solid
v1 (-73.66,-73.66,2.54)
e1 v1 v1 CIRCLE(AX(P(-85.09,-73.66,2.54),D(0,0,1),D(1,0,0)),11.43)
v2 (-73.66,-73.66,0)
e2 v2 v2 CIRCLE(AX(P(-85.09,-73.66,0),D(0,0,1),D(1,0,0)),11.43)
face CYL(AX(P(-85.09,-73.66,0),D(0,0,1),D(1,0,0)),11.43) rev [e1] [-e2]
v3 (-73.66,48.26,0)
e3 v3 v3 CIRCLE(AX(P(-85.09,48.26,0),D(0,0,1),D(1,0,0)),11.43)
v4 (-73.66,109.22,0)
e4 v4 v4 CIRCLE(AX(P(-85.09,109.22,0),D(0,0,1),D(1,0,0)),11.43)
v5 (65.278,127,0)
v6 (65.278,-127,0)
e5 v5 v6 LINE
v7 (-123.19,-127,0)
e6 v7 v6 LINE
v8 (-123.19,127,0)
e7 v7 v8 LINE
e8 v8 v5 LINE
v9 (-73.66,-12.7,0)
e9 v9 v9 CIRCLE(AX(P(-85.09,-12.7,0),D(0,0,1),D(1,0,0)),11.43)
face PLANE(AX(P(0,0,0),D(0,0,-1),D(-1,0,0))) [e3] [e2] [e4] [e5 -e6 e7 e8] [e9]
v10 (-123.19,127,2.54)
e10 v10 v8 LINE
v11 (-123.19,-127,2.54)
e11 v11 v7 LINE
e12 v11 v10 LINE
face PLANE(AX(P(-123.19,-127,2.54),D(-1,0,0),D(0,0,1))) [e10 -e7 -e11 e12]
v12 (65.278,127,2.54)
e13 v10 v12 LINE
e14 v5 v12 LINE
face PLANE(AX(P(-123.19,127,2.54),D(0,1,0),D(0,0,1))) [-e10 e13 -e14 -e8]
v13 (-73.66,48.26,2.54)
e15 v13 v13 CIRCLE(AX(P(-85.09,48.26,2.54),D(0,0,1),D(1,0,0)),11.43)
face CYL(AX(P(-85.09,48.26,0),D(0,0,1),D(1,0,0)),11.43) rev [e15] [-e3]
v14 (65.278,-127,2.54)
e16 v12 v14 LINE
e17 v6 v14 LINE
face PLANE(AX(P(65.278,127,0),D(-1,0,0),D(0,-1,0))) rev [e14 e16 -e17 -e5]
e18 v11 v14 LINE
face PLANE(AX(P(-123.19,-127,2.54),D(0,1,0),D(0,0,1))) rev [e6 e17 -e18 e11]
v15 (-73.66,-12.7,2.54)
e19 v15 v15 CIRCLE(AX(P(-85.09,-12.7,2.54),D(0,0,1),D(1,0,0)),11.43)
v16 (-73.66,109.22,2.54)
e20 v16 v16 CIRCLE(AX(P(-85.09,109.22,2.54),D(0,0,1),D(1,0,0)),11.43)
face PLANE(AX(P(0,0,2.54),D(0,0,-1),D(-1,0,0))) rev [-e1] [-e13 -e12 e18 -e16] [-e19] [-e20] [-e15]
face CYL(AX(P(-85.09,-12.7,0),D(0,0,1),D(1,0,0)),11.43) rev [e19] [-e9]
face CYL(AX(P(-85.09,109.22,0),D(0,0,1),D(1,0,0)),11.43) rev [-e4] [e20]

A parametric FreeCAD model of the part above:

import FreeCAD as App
import Part
import Sketcher
from FreeCAD import Vector
Q = App.Units.Quantity


def add_polygon(sketch, points):
    """Adds a closed chain of lines whose ends are joined by coincident constraints."""
    first, n = sketch.GeometryCount, len(points)
    for a, b in zip(points, points[1:] + points[:1]):
        sketch.addGeometry(Part.LineSegment(App.Vector(*a, 0), App.Vector(*b, 0)), False)
    for i in range(n):
        sketch.addConstraint(Sketcher.Constraint("Coincident", first + i, 2, first + (i + 1) % n, 1))

doc = App.newDocument("Part")
body = doc.addObject("PartDesign::Body", "Body")

# Sketch on XY plane
sketch1 = body.newObject("Sketcher::SketchObject", "Sketch")
sketch1.AttachmentSupport = (doc.getObject("XY_Plane"), [""])
sketch1.MapMode = "FlatFace"
add_polygon(sketch1, [(-123, 127), (-123, -127), (123, -127), (123, 127)])  # lines 0-3
sketch1.addConstraint([
    Sketcher.Constraint("Vertical", 0),
    Sketcher.Constraint("Horizontal", 1),
    Sketcher.Constraint("Vertical", 2),
    Sketcher.Constraint("Horizontal", 3),
    Sketcher.Constraint("Symmetric", 0, 2, 2, 2, -1, 1),
    Sketcher.Constraint("DistanceY", 0, 2, 0, 1, Q("10 in")),
    Sketcher.Constraint("DistanceX", 1, 1, 1, 2, Q("9.7 in")),
])
pad1 = body.newObject("PartDesign::Pad", "Pad")
pad1.Profile = sketch1
pad1.Length = Q("0.1 in")

# Sketch on XY plane
sketch2 = body.newObject("Sketcher::SketchObject", "Sketch001")
sketch2.AttachmentSupport = (doc.getObject("XY_Plane"), [""])
sketch2.MapMode = "FlatFace"
sketch2.AttachmentOffset = App.Placement(Vector(0, 0, 0.1 * 25.4), App.Rotation())
sketch2.addGeometry(Part.Circle(Vector(-85, 109, 0), Vector(0, 0, 1), 11), False)
sketch2.addConstraint([
    Sketcher.Constraint("Diameter", 0, Q("0.9 in")),
    Sketcher.Constraint("DistanceY", -1, 1, 0, 3, Q("4.3 in")),
    Sketcher.Constraint("DistanceX", 0, 3, -1, 1, Q("3.35 in")),
])
pocket1 = body.newObject("PartDesign::Pocket", "Pocket")
pocket1.Profile = sketch2
pocket1.Type = "ThroughAll"
doc.recompute()

linearpattern = body.newObject("PartDesign::LinearPattern", "LinearPattern")
linearpattern.Originals = [pocket1]
linearpattern.Direction = (doc.getObject("Y_Axis"), [""])
linearpattern.Mode = "offset"
linearpattern.Offset = Q("2.4 in")
linearpattern.Occurrences = 4
linearpattern.Reversed = True
body.Tip = linearpattern

# Sketch on XY plane
sketch3 = body.newObject("Sketcher::SketchObject", "Sketch002")
sketch3.AttachmentSupport = (doc.getObject("XY_Plane"), [""])
sketch3.MapMode = "FlatFace"
sketch3.AttachmentOffset = App.Placement(Vector(0, 0, 0.1 * 25.4), App.Rotation())
add_polygon(sketch3, [(65, 127), (65, -127), (123, -127), (123, 127)])  # lines 0-3
sketch3.addConstraint([
    Sketcher.Constraint("Vertical", 0),
    Sketcher.Constraint("Horizontal", 1),
    Sketcher.Constraint("Vertical", 2),
    Sketcher.Constraint("Horizontal", 3),
    Sketcher.Constraint("DistanceY", 0, 2, 0, 1, Q("10 in")),
    Sketcher.Constraint("DistanceY", 0, 2, -1, 1, Q("5 in")),
    Sketcher.Constraint("DistanceX", 1, 1, 1, 2, Q("2.28 in")),
    Sketcher.Constraint("DistanceX", -1, 1, 0, 2, Q("2.57 in")),
])
pocket2 = body.newObject("PartDesign::Pocket", "Pocket001")
pocket2.Profile = sketch3
pocket2.Type = "ThroughAll"

doc.recompute()
